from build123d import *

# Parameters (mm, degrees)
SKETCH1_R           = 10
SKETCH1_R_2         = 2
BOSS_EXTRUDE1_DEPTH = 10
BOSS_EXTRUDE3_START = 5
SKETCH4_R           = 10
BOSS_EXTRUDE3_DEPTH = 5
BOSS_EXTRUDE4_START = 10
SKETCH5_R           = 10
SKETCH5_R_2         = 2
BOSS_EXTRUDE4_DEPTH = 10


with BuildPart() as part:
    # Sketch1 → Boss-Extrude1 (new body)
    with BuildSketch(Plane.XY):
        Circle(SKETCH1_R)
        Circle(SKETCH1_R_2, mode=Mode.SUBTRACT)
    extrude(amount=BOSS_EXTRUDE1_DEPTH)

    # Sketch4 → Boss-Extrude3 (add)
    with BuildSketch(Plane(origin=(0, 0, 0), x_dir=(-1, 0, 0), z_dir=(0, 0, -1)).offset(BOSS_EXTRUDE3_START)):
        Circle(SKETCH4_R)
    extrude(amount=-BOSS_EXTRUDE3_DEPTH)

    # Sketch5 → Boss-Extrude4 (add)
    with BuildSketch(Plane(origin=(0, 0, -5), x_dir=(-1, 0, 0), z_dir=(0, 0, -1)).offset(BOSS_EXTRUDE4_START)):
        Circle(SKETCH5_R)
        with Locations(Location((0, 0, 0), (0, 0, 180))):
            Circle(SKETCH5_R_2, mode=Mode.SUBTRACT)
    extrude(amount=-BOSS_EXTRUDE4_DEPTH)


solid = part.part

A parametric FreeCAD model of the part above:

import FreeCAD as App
import Part
import Sketcher

doc = App.newDocument("Part")
body = doc.addObject("PartDesign::Body", "Body")

# Sketch on XY plane
sketch1 = doc.addObject("Sketcher::SketchObject", "Sketch")
body.addObject(sketch1)
sketch1.AttachmentSupport = (doc.XY_Plane, [""])
sketch1.MapMode = "FlatFace"
sketch1.addGeometry(Part.Circle(App.Vector(0, 0, 0), App.Vector(0, 0, 1), 10), False)
sketch1.addGeometry(Part.Circle(App.Vector(0, 0, 0), App.Vector(0, 0, 1), 2), False)
sketch1.addConstraint(Sketcher.Constraint("Coincident", 0, 3, -1, 1))
sketch1.addConstraint(Sketcher.Constraint("Coincident", 1, 3, -1, 1))
sketch1.addConstraint(Sketcher.Constraint("Diameter", 0, 20.0))
sketch1.addConstraint(Sketcher.Constraint("Diameter", 1, 4.0))
pad1 = doc.addObject("PartDesign::Pad", "Pad")
body.addObject(pad1)
pad1.Profile = sketch1
pad1.Length = 10

# Sketch on XY plane
sketch2 = doc.addObject("Sketcher::SketchObject", "Sketch001")
body.addObject(sketch2)
sketch2.AttachmentSupport = (doc.XY_Plane, [""])
sketch2.MapMode = "FlatFace"
sketch2.AttachmentOffset = App.Placement(App.Vector(0, 0, -5), App.Rotation())
sketch2.addGeometry(Part.Circle(App.Vector(0, 0, 0), App.Vector(0, 0, 1), 10), False)
sketch2.addConstraint(Sketcher.Constraint("Coincident", 0, 3, -1, 1))
sketch2.addConstraint(Sketcher.Constraint("Diameter", 0, 20.0))
pad2 = doc.addObject("PartDesign::Pad", "Pad001")
body.addObject(pad2)
pad2.Profile = sketch2
pad2.Length = 5

# Sketch on XY plane
sketch3 = doc.addObject("Sketcher::SketchObject", "Sketch002")
body.addObject(sketch3)
sketch3.AttachmentSupport = (doc.XY_Plane, [""])
sketch3.MapMode = "FlatFace"
sketch3.AttachmentOffset = App.Placement(App.Vector(0, 0, -15), App.Rotation())
sketch3.addGeometry(Part.Circle(App.Vector(0, 0, 0), App.Vector(0, 0, 1), 10), False)
sketch3.addGeometry(Part.Circle(App.Vector(0, 0, 0), App.Vector(0, 0, 1), 2), False)
sketch3.addConstraint(Sketcher.Constraint("Coincident", 0, 3, -1, 1))
sketch3.addConstraint(Sketcher.Constraint("Coincident", 1, 3, -1, 1))
sketch3.addConstraint(Sketcher.Constraint("Diameter", 0, 20.0))
sketch3.addConstraint(Sketcher.Constraint("Diameter", 1, 4.0))
pad3 = doc.addObject("PartDesign::Pad", "Pad002")
body.addObject(pad3)
pad3.Profile = sketch3
pad3.Length = 10

doc.recompute()
